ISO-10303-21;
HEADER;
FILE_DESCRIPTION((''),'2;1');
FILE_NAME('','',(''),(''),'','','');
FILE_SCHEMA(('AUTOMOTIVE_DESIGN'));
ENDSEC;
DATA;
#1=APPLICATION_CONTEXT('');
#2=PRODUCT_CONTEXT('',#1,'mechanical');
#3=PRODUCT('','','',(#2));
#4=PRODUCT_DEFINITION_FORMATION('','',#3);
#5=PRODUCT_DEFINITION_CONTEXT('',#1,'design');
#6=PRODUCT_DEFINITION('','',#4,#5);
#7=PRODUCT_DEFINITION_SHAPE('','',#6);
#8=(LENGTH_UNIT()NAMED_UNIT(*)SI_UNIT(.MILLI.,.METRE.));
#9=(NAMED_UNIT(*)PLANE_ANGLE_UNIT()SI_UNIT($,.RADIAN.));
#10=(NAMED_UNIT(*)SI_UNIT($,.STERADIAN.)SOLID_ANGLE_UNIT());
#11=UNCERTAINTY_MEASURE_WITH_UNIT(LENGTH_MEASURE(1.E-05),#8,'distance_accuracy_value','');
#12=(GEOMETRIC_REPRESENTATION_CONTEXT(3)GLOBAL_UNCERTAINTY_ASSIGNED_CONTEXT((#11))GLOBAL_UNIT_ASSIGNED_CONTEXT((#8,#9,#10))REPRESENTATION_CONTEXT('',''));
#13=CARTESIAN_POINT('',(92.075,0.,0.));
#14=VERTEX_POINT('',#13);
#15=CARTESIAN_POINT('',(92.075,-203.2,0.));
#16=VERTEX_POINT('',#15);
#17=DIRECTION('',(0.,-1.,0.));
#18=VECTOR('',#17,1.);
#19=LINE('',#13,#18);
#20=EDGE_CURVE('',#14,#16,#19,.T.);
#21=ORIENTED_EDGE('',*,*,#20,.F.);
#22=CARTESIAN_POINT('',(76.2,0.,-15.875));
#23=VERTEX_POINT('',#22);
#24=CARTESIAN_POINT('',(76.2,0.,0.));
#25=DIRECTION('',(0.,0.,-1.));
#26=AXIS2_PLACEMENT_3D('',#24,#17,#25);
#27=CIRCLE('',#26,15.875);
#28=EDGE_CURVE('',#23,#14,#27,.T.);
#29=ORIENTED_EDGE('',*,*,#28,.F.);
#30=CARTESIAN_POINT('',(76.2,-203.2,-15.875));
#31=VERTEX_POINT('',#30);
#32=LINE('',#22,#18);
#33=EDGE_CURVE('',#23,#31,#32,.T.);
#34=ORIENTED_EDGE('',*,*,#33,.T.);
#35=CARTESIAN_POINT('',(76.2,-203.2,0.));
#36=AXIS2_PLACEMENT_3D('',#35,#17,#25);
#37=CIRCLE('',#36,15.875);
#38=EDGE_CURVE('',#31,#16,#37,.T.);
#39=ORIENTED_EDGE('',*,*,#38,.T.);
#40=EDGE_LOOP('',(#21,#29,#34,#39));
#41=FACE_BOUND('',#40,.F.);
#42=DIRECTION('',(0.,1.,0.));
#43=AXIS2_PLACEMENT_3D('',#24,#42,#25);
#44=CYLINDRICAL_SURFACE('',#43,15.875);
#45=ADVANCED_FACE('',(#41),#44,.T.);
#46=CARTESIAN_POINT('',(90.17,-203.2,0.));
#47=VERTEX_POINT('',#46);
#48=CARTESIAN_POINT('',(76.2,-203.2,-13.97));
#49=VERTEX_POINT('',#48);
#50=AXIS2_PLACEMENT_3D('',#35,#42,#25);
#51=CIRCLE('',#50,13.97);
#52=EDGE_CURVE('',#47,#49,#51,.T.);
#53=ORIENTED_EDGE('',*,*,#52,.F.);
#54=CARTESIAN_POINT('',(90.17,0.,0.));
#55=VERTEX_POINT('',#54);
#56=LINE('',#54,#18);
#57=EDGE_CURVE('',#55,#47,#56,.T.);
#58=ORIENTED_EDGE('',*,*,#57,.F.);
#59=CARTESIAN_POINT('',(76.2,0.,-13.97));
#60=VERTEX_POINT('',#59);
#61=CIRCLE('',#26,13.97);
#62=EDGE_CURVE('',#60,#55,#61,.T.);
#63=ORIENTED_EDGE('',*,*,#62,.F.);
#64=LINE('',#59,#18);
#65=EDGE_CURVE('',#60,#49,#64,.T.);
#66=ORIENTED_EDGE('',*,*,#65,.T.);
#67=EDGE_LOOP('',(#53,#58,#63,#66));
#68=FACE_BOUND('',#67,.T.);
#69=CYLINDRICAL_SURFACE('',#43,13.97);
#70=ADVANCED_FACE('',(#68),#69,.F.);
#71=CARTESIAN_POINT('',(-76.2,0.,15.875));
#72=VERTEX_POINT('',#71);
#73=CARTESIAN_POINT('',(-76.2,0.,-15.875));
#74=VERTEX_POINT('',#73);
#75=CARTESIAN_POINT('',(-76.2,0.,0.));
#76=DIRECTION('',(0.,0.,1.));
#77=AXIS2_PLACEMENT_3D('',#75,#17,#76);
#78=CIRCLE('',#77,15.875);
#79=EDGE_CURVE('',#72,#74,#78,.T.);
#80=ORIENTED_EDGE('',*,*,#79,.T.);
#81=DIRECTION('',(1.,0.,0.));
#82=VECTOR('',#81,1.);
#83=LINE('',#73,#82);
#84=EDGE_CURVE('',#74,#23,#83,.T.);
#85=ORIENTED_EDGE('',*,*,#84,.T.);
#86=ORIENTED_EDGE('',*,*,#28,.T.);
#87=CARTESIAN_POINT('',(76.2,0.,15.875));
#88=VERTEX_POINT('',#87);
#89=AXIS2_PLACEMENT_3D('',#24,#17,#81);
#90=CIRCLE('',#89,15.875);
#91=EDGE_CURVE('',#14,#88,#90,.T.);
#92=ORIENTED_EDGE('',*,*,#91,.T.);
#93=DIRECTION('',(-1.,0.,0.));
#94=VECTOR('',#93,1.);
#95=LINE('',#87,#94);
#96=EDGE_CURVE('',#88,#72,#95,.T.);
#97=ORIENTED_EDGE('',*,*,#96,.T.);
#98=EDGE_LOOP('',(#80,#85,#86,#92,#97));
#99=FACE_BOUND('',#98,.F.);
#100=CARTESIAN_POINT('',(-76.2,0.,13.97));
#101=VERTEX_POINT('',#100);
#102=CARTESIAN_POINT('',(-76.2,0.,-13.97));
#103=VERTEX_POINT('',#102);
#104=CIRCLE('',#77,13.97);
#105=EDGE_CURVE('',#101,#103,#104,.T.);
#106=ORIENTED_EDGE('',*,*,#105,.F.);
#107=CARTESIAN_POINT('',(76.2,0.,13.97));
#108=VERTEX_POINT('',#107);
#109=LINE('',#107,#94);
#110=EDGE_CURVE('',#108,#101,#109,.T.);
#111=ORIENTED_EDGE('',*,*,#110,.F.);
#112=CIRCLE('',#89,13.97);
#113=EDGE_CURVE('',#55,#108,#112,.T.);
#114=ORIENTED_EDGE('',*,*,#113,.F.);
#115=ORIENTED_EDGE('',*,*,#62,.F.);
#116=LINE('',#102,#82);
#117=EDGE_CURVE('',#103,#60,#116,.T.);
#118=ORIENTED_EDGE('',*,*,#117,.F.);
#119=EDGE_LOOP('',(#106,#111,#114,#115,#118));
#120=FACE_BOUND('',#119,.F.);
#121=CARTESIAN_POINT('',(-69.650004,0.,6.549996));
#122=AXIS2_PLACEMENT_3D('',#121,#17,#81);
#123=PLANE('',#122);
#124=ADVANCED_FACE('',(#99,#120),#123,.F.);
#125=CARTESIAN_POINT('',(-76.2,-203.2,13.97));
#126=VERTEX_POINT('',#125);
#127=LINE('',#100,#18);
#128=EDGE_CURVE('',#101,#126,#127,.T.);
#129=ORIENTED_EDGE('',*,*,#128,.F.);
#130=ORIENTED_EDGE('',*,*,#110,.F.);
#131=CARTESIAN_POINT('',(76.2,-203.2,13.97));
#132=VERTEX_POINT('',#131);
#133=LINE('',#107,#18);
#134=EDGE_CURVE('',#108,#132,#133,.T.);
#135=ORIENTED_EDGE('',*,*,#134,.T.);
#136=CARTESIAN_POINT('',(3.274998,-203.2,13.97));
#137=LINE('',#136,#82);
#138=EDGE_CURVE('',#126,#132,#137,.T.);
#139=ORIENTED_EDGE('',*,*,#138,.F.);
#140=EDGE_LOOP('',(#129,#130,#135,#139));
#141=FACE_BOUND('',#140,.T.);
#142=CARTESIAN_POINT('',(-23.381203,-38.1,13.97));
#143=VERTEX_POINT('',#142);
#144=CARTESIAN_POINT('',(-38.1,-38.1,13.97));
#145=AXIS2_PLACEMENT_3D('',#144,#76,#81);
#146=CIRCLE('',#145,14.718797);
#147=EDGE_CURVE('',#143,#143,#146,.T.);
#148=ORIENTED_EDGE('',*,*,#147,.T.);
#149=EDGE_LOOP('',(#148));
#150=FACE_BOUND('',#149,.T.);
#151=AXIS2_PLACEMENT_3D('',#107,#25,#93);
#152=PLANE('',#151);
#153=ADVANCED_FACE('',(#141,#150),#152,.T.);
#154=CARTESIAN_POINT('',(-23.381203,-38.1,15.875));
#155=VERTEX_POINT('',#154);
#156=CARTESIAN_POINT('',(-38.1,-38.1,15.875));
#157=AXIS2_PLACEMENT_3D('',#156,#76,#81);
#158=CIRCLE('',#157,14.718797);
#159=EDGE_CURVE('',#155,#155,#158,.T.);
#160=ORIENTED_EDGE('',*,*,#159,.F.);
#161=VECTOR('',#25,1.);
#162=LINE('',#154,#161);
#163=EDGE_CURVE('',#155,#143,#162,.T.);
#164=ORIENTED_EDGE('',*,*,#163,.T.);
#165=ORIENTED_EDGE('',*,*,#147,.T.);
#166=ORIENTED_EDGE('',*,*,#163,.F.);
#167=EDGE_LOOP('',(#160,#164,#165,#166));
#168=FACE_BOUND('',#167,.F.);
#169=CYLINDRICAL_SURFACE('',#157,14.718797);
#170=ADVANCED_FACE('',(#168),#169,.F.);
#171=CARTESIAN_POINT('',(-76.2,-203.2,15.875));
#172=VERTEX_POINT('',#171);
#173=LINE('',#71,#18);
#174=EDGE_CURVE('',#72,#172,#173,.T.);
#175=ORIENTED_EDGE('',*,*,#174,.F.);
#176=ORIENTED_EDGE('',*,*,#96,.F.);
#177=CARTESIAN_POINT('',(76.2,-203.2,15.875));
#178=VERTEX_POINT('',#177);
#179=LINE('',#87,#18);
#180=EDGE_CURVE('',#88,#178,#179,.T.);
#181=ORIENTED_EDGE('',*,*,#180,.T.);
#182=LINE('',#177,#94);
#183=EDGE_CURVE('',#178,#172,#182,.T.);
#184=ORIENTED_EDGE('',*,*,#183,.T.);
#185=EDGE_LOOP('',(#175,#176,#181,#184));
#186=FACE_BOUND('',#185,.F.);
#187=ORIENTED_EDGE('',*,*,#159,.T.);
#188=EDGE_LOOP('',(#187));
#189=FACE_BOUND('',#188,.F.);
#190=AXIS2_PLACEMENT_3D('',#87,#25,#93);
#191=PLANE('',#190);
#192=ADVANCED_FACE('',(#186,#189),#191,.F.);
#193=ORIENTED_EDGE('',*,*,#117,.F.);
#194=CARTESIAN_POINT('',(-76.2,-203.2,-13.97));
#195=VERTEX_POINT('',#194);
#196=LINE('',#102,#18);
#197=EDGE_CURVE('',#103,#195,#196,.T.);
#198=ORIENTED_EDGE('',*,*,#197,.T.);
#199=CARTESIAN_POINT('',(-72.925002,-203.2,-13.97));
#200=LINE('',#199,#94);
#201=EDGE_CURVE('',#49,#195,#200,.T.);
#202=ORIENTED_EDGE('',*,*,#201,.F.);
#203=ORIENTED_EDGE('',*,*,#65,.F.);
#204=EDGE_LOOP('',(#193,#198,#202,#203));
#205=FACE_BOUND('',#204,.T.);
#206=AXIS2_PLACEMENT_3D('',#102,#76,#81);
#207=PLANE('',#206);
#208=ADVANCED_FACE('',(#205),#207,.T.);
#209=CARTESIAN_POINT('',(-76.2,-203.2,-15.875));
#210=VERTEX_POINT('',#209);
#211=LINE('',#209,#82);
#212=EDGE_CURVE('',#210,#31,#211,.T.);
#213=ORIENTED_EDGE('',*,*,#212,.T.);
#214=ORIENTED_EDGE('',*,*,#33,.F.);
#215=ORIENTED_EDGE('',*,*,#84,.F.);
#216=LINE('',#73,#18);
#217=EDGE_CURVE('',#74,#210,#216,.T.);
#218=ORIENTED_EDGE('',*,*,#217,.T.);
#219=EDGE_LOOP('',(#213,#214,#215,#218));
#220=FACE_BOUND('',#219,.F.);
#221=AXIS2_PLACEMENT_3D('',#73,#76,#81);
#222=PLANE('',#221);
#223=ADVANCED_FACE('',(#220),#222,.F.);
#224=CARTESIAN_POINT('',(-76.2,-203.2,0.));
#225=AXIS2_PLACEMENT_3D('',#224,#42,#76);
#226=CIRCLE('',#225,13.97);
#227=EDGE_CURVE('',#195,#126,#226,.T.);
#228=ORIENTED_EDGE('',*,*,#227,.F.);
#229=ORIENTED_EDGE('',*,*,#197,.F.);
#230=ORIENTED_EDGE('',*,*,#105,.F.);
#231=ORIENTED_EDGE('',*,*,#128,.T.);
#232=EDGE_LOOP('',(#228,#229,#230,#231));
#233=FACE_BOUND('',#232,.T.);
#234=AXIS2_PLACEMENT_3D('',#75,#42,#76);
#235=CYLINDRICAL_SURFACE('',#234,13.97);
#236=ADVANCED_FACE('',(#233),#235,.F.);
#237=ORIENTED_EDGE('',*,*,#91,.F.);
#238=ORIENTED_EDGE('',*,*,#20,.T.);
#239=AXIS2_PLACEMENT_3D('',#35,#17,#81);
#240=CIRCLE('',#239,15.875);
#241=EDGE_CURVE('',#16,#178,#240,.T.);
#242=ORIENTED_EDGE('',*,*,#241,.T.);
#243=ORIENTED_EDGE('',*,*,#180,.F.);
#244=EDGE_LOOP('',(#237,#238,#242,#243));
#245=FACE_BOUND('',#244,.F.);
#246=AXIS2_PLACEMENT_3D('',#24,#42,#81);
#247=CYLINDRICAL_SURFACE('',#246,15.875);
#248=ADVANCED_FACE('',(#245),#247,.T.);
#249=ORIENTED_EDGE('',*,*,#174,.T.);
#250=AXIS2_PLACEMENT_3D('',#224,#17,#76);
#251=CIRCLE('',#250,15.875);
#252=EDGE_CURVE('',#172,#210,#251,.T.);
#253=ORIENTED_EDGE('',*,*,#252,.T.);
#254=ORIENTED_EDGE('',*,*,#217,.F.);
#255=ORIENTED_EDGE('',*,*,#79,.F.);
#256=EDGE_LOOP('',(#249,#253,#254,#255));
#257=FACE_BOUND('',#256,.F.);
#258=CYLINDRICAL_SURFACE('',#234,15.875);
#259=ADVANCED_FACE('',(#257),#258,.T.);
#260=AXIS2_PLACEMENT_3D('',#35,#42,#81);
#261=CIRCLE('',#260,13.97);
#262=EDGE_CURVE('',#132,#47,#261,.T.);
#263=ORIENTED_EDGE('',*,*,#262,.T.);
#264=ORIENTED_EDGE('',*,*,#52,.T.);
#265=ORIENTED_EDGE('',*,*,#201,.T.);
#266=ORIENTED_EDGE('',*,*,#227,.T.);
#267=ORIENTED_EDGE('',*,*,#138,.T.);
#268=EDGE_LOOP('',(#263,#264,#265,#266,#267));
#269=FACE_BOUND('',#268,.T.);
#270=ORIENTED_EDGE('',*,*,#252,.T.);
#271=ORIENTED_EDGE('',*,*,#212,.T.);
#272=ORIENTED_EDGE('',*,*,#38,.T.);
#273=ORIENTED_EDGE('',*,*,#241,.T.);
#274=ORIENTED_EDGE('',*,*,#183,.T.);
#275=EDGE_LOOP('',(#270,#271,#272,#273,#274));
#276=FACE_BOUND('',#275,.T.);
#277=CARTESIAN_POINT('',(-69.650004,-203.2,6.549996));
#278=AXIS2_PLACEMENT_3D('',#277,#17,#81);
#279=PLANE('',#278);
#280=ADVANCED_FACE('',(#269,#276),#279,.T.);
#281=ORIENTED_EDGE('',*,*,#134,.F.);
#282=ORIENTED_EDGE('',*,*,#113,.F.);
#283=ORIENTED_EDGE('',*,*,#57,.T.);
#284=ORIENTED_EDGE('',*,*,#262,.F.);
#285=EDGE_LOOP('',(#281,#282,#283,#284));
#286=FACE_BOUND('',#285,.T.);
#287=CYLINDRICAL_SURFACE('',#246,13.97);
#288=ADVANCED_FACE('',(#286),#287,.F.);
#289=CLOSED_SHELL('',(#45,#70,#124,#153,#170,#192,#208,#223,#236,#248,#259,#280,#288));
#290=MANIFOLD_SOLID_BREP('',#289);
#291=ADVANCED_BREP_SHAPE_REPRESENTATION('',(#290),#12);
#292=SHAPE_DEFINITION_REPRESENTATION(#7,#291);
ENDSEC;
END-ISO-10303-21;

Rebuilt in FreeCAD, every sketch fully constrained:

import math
import FreeCAD as App
import Part
import Sketcher

V = App.Vector
Q = App.Units.Quantity

doc = App.newDocument("Part")
body = doc.addObject("PartDesign::Body", "Body")

# Sketch on XZ plane
sketch1 = body.newObject("Sketcher::SketchObject", "Sketch")
sketch1.AttachmentSupport = (doc.getObject("XZ_Plane"), [""])
sketch1.MapMode = "FlatFace"
sketch1.addGeometry(Part.LineSegment(V(76.2, 15.875, 0), V(-76.2, 15.875, 0)), False)
sketch1.addGeometry(Part.ArcOfCircle(Part.Circle(V(-76.2, 0, 0), V(0, 0, 1), 15.875), math.radians(90), math.radians(270)), False)
sketch1.addGeometry(Part.LineSegment(V(-76.2, -15.875, 0), V(76.2, -15.875, 0)), False)
sketch1.addGeometry(Part.ArcOfCircle(Part.Circle(V(76.2, 0, 0), V(0, 0, 1), 15.875), math.radians(-90), math.radians(0)), False)
sketch1.addGeometry(Part.ArcOfCircle(Part.Circle(V(76.2, 0, 0), V(0, 0, 1), 15.875), math.radians(0), math.radians(90)), False)
sketch1.addConstraint(Sketcher.Constraint("Tangent", 0, 2, 1, 1))
sketch1.addConstraint(Sketcher.Constraint("Tangent", 1, 2, 2, 1))
sketch1.addConstraint(Sketcher.Constraint("Tangent", 2, 2, 3, 1))
sketch1.addConstraint(Sketcher.Constraint("Tangent", 3, 2, 4, 1))
sketch1.addConstraint(Sketcher.Constraint("Tangent", 4, 2, 0, 1))
sketch1.addConstraint(Sketcher.Constraint("Horizontal", 0))
sketch1.addConstraint(Sketcher.Constraint("Horizontal", 2))
sketch1.addConstraint(Sketcher.Constraint("Equal", 1, 3))
sketch1.addConstraint(Sketcher.Constraint("Symmetric", 1, 3, 3, 3, -1, 1))
sketch1.addConstraint(Sketcher.Constraint("PointOnObject", 3, 2, -1))
sketch1.addConstraint(Sketcher.Constraint("DistanceX", 0, 2, 0, 1, Q("6 in")))
sketch1.addConstraint(Sketcher.Constraint("Radius", 1, Q("0.625 in")))
pad1 = body.newObject("PartDesign::Pad", "Pad")
pad1.Profile = sketch1
pad1.Length = Q("8 in")

# Sketch on XZ plane
sketch2 = body.newObject("Sketcher::SketchObject", "Sketch001")
sketch2.AttachmentSupport = (doc.getObject("XZ_Plane"), [""])
sketch2.MapMode = "FlatFace"
sketch2.addGeometry(Part.LineSegment(V(76.2, 13.97, 0), V(-76.2, 13.97, 0)), False)
sketch2.addGeometry(Part.ArcOfCircle(Part.Circle(V(-76.2, 0, 0), V(0, 0, 1), 13.97), math.radians(90), math.radians(270)), False)
sketch2.addGeometry(Part.LineSegment(V(-76.2, -13.97, 0), V(76.2, -13.97, 0)), False)
sketch2.addGeometry(Part.ArcOfCircle(Part.Circle(V(76.2, 0, 0), V(0, 0, 1), 13.97), math.radians(-90), math.radians(0)), False)
sketch2.addGeometry(Part.ArcOfCircle(Part.Circle(V(76.2, 0, 0), V(0, 0, 1), 13.97), math.radians(0), math.radians(90)), False)
sketch2.addConstraint(Sketcher.Constraint("Tangent", 0, 2, 1, 1))
sketch2.addConstraint(Sketcher.Constraint("Tangent", 1, 2, 2, 1))
sketch2.addConstraint(Sketcher.Constraint("Tangent", 2, 2, 3, 1))
sketch2.addConstraint(Sketcher.Constraint("Tangent", 3, 2, 4, 1))
sketch2.addConstraint(Sketcher.Constraint("Tangent", 4, 2, 0, 1))
sketch2.addConstraint(Sketcher.Constraint("Horizontal", 0))
sketch2.addConstraint(Sketcher.Constraint("Horizontal", 2))
sketch2.addConstraint(Sketcher.Constraint("Equal", 1, 3))
sketch2.addConstraint(Sketcher.Constraint("Symmetric", 1, 3, 3, 3, -1, 1))
sketch2.addConstraint(Sketcher.Constraint("PointOnObject", 3, 2, -1))
sketch2.addConstraint(Sketcher.Constraint("DistanceX", 0, 2, 0, 1, Q("6 in")))
sketch2.addConstraint(Sketcher.Constraint("Radius", 1, Q("0.55 in")))
pocket1 = body.newObject("PartDesign::Pocket", "Pocket")
pocket1.Profile = sketch2
pocket1.Type = "ThroughAll"
pocket1.Reversed = True

# Sketch on XY plane
sketch3 = body.newObject("Sketcher::SketchObject", "Sketch002")
sketch3.AttachmentSupport = (doc.getObject("XY_Plane"), [""])
sketch3.MapMode = "FlatFace"
sketch3.AttachmentOffset = App.Placement(V(0, 0, 0.625 * 25.4), App.Rotation())
sketch3.addGeometry(Part.Circle(V(-38.1, -38.1, 0), V(0, 0, 1), 14.718797), False)
sketch3.addConstraint(Sketcher.Constraint("DistanceX", 0, 3, -1, 1, Q("1.5 in")))
sketch3.addConstraint(Sketcher.Constraint("DistanceY", 0, 3, -1, 1, Q("1.5 in")))
sketch3.addConstraint(Sketcher.Constraint("Diameter", 0, 29.437594))
pocket2 = body.newObject("PartDesign::Pocket", "Pocket001")
pocket2.Profile = sketch3
pocket2.Length = Q("0.5 in")

doc.recompute()
